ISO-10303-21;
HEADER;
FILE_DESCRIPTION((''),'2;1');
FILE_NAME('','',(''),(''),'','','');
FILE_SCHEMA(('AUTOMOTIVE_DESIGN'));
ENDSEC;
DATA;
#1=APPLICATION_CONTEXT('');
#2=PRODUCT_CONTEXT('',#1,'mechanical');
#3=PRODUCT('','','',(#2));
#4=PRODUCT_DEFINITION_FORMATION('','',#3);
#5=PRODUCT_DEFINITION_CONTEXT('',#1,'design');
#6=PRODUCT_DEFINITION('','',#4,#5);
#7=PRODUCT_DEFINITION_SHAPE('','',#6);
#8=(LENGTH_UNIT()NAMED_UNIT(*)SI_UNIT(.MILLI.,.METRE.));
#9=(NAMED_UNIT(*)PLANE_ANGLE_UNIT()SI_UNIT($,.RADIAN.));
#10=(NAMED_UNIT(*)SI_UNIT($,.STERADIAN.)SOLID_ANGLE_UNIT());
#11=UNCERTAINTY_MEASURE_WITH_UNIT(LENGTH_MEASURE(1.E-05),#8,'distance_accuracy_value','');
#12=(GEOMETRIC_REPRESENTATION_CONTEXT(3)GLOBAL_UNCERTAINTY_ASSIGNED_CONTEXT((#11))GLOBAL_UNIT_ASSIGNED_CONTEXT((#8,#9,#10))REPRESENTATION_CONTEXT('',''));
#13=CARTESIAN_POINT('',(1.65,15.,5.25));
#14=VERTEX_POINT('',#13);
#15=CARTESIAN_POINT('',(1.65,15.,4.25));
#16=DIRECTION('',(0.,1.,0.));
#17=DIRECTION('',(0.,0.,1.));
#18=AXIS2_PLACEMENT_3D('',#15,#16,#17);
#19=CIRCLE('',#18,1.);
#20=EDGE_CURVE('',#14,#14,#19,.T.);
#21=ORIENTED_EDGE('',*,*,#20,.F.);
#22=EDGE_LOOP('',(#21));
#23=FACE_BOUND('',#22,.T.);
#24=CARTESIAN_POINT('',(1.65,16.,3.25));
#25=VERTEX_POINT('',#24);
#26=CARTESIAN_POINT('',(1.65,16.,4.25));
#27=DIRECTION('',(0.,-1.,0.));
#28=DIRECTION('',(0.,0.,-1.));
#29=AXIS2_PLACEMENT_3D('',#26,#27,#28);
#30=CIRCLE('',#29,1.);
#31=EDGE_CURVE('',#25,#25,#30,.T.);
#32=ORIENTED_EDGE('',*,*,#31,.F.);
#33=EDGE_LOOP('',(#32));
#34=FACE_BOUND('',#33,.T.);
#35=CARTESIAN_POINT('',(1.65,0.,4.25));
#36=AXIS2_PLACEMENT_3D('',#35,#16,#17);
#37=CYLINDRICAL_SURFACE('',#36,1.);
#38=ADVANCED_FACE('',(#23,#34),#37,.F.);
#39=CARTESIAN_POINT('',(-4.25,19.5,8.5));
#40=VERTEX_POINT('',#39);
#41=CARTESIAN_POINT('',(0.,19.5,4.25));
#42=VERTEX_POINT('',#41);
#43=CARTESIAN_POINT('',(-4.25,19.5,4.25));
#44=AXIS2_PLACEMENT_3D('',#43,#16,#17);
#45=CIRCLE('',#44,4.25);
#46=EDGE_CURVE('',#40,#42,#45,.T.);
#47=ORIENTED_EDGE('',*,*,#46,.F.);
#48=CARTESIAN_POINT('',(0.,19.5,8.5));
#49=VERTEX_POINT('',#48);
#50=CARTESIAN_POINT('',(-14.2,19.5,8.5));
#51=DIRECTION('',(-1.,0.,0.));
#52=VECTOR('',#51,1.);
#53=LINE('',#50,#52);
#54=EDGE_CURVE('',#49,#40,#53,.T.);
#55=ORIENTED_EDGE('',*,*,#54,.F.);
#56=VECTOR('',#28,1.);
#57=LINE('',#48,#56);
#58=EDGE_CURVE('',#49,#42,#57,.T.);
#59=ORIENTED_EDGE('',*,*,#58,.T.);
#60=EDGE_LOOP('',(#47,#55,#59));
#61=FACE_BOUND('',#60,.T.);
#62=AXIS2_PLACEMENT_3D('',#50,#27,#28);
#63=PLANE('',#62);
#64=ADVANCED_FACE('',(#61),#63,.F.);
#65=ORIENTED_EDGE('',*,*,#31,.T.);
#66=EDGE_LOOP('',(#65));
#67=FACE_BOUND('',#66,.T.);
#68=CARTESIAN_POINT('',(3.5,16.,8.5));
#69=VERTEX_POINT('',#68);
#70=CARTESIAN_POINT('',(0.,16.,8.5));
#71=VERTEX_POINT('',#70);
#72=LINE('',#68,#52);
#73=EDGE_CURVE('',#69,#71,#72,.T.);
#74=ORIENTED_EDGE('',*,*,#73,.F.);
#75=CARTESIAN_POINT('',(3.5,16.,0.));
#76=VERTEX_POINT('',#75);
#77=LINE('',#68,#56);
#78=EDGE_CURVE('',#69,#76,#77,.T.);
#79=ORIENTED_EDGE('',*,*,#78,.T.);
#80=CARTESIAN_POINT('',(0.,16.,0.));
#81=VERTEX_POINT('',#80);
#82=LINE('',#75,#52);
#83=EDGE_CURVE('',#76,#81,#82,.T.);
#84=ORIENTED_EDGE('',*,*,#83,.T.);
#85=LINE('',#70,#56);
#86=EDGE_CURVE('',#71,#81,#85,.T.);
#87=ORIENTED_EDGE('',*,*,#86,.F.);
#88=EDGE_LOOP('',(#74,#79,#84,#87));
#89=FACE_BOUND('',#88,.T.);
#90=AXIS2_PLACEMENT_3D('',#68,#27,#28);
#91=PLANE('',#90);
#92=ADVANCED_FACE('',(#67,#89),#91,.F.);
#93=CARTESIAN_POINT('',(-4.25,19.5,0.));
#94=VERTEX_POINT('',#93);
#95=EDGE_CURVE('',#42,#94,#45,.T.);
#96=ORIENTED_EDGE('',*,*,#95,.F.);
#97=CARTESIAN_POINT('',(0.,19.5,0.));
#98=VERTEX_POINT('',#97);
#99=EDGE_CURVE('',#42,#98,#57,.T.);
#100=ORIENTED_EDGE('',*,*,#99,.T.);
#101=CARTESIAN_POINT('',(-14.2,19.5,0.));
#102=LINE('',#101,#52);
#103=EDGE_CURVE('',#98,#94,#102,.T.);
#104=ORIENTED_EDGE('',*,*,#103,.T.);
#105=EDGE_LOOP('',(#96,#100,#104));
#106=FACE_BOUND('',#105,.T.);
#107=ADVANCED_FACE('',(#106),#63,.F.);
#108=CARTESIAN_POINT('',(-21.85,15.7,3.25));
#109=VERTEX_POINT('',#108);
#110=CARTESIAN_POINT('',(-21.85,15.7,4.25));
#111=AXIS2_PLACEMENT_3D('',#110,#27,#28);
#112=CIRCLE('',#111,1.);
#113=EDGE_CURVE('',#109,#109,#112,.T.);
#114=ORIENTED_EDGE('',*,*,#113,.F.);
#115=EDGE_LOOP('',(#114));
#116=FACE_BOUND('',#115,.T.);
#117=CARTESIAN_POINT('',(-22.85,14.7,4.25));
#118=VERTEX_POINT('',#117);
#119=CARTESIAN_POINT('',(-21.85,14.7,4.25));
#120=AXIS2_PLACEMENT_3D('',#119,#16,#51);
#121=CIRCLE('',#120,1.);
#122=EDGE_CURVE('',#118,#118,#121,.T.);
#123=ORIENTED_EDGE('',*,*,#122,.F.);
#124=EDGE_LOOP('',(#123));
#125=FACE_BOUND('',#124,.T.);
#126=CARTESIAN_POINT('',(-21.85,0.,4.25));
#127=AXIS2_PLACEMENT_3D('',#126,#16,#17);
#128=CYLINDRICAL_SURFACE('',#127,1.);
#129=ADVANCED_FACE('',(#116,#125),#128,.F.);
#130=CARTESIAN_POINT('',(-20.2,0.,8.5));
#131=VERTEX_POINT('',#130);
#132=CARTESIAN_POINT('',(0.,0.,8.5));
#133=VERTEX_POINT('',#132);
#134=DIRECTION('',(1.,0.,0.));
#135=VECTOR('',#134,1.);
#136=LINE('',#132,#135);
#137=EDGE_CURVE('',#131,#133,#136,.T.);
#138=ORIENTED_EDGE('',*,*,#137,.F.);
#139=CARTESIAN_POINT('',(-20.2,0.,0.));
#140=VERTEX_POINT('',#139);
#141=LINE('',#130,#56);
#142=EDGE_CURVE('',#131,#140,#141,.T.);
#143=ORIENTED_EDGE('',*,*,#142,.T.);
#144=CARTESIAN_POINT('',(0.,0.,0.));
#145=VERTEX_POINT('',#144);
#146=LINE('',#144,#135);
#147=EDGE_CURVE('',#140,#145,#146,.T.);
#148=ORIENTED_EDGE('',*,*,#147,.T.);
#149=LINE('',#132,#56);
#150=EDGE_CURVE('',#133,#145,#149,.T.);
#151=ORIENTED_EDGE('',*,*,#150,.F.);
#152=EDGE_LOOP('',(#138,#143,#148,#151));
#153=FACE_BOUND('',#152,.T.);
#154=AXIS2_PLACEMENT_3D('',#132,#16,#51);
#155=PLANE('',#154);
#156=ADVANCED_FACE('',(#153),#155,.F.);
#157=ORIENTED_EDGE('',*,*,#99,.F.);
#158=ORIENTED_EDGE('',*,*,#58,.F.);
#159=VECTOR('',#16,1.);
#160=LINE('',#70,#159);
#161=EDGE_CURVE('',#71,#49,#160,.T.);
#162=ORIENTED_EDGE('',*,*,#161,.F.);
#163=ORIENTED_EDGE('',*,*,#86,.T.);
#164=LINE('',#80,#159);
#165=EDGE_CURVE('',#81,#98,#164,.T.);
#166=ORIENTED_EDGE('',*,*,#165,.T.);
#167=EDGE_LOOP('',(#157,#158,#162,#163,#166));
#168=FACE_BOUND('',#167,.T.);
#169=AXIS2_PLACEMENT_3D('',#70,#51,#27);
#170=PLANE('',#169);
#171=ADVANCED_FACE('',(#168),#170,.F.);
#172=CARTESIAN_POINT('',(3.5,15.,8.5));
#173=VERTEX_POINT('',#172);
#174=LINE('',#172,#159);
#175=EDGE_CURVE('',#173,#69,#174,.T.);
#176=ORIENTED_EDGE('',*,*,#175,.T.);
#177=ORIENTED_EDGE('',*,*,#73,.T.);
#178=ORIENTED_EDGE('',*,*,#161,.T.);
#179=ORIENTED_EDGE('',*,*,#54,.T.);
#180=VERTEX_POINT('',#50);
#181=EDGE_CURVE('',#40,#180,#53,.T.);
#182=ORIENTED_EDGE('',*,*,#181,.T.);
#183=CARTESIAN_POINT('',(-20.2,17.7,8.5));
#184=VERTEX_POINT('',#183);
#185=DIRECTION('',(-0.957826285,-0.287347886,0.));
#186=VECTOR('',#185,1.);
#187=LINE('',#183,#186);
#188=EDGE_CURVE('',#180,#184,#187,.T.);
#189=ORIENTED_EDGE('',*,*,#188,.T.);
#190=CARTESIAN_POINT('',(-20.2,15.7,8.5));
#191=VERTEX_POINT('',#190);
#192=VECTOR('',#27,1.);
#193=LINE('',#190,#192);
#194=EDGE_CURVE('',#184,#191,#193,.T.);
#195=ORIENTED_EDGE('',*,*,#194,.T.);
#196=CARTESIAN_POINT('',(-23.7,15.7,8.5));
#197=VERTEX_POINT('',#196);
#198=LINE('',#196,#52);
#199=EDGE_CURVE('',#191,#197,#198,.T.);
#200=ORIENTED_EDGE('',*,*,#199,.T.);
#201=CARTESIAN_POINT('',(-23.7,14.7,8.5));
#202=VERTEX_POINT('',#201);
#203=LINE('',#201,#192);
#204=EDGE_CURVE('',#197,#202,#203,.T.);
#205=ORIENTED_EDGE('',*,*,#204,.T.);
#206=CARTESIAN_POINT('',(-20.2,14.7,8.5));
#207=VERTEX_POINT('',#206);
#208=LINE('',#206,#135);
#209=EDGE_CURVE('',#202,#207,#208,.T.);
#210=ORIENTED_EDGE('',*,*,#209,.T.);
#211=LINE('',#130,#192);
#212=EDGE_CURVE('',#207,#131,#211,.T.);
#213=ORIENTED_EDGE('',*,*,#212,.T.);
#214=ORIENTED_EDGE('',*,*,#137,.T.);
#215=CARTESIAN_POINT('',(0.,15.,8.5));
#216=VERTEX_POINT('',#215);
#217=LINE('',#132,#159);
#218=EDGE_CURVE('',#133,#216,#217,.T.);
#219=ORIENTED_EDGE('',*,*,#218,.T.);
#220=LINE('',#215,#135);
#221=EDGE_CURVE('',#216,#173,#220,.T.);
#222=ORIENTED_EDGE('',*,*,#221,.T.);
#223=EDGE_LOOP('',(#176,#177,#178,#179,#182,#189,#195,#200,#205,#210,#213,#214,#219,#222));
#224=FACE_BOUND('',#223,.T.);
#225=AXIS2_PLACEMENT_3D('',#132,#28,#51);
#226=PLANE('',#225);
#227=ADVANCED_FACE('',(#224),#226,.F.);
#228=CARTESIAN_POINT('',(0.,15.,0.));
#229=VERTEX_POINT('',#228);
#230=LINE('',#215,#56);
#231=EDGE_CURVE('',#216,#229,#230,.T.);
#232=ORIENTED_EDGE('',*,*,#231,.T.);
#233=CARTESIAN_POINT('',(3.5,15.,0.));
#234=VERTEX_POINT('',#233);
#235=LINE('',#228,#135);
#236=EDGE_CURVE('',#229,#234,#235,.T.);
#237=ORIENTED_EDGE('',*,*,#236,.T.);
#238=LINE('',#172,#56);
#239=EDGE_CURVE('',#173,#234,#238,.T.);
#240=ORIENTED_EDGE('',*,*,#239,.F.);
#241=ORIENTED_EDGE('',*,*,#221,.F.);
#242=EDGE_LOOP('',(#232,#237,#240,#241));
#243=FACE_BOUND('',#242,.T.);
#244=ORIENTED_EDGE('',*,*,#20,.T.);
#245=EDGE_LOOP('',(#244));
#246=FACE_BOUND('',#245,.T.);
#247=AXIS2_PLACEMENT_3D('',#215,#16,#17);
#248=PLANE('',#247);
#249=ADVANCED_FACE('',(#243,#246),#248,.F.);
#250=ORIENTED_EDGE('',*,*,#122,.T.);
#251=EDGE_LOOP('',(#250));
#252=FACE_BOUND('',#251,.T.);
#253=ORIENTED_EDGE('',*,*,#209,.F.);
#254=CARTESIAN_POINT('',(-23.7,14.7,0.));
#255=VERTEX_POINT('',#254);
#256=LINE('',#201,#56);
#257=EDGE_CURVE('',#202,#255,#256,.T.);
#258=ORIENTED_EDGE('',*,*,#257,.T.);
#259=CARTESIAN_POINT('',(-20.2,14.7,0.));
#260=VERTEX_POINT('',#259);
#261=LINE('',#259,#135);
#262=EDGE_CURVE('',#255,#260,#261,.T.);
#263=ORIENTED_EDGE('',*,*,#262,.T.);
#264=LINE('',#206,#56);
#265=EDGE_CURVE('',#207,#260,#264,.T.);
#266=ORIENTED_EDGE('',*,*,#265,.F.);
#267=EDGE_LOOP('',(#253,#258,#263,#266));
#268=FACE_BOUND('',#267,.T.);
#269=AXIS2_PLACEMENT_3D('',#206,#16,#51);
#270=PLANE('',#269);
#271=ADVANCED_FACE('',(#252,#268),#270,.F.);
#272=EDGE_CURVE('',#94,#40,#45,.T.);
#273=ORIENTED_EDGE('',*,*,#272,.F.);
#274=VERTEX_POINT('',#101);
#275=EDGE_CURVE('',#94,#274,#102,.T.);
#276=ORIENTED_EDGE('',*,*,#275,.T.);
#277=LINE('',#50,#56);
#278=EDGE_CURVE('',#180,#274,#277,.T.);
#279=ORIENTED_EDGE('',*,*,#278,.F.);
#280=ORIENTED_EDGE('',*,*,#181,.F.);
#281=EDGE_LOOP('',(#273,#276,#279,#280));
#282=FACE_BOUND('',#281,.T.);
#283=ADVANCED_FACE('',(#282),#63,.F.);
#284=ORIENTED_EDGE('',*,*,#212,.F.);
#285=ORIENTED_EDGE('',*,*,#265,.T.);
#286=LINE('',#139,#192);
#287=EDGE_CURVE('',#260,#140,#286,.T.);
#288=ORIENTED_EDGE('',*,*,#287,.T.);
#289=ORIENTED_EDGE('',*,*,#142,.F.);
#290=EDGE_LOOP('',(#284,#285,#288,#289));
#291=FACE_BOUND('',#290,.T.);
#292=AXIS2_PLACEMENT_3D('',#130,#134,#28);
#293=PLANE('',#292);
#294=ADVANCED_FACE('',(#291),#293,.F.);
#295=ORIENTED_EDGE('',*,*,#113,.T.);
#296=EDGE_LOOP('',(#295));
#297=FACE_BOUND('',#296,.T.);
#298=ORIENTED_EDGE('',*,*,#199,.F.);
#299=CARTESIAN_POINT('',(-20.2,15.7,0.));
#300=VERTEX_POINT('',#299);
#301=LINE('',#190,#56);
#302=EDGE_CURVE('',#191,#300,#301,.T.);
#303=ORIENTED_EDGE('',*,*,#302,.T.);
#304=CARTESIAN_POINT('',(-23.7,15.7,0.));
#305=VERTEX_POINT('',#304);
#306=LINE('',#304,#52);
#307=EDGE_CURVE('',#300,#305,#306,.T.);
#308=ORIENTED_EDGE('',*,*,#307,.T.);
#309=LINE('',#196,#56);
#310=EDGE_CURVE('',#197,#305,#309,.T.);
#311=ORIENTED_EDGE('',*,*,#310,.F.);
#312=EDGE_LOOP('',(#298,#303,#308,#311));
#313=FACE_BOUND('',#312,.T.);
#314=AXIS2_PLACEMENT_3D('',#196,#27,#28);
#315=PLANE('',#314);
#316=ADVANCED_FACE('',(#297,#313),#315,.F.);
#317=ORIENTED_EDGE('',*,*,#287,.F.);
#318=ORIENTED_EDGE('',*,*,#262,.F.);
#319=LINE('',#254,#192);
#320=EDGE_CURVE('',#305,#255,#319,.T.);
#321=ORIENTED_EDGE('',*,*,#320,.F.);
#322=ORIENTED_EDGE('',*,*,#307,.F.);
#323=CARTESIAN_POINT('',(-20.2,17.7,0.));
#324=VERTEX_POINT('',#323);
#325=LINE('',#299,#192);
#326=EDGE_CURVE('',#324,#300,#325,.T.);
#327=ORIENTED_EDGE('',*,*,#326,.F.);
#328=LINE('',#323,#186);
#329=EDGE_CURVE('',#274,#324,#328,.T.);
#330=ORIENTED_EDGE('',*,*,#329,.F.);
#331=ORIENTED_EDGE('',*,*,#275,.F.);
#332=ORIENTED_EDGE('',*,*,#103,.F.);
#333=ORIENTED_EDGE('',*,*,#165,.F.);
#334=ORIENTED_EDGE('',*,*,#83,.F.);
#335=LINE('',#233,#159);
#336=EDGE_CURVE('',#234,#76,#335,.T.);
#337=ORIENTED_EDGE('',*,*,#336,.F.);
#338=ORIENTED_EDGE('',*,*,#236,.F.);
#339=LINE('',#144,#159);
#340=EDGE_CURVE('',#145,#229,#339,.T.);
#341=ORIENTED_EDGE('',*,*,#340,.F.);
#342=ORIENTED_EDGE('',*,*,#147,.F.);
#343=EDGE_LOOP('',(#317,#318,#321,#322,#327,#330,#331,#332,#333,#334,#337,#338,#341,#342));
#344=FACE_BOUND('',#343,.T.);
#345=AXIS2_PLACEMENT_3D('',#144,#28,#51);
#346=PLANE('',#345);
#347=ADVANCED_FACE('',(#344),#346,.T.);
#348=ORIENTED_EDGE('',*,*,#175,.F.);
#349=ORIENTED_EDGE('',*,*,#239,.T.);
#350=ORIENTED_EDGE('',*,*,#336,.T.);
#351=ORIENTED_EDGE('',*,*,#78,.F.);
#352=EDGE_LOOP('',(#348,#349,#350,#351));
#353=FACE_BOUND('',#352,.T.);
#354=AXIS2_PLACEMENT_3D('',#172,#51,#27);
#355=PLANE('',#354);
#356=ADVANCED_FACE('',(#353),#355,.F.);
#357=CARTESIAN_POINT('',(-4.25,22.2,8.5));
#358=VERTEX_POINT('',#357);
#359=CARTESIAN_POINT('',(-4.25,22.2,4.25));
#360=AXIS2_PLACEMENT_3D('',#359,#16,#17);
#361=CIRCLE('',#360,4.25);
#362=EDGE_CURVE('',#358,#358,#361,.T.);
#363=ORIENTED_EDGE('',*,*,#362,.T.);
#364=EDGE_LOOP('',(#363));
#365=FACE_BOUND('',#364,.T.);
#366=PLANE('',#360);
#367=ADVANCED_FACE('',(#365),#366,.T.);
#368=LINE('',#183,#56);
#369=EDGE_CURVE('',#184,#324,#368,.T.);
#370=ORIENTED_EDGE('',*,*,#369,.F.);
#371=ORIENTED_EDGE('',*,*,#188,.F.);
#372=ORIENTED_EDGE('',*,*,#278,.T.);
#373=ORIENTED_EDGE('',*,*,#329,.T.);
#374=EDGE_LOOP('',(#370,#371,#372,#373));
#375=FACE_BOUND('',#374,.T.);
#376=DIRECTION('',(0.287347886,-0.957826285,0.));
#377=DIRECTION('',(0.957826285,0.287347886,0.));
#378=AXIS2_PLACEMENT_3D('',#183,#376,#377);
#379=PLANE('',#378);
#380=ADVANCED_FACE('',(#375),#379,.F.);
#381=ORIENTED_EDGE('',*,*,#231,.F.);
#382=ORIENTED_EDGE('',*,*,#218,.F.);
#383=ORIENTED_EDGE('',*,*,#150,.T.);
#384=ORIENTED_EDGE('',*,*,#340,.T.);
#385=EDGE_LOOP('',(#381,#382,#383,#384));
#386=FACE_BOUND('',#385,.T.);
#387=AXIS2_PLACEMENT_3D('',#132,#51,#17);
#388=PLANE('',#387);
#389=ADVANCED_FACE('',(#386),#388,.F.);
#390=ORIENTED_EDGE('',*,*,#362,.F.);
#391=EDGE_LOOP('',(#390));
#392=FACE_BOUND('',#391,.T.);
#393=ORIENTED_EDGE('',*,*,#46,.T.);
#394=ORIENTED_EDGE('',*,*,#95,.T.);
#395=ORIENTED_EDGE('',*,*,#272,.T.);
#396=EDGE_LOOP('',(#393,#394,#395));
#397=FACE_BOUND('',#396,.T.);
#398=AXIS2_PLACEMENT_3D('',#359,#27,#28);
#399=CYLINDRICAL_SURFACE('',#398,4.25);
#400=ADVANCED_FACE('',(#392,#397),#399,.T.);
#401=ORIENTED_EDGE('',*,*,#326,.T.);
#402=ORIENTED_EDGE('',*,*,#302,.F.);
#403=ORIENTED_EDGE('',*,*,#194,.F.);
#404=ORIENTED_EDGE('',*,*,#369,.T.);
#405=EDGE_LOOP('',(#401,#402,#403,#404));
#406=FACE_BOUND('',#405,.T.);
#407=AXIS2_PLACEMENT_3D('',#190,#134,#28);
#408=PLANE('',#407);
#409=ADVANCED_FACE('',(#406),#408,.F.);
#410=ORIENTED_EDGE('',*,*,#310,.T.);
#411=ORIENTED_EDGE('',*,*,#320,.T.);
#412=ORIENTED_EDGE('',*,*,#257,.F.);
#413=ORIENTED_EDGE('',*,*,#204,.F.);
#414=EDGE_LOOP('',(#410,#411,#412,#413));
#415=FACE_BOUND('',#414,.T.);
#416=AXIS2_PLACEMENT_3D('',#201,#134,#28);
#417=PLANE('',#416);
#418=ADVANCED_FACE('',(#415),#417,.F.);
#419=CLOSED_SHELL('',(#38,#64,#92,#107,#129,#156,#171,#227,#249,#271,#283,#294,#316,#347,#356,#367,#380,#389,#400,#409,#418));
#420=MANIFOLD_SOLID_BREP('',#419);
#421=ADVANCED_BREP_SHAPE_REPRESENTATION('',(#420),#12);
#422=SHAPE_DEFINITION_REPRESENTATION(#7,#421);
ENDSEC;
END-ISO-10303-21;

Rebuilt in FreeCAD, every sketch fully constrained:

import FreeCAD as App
import Part
import Sketcher

V = App.Vector

doc = App.newDocument("Part")
params = doc.addObject("Spreadsheet::Sheet", "Params")
for row, (alias, value) in enumerate([
    ("sketch1_height", "15 mm"),
    ("sketch1_height2", "1 mm"),
    ("sketch1_height3", "2 mm"),
    ("sketch1_width", "20.2 mm"),
    ("sketch1_width2", "3.5 mm"),
    ("pad1_length", "8.5 mm"),
    ("sketch2_diameter", "8.5 mm"),
    ("pad2_length", "2.7 mm"),
    ("sketch3_diameter", "2 mm"),
], start=1):
    params.set(f"A{row}", alias)
    params.set(f"B{row}", "=" + value)
    params.setAlias(f"B{row}", alias)

body = doc.addObject("PartDesign::Body", "Body")

sketch1 = body.newObject("Sketcher::SketchObject", "Sketch")
sketch1.AttachmentSupport = (doc.getObject("XY_Plane"), [""])
sketch1.MapMode = "FlatFace"
sketch1.addGeometry(Part.LineSegment(V(-20.2, 0, 0), V(0, 0, 0)), False)
sketch1.addGeometry(Part.LineSegment(V(0, 0, 0), V(0, 15, 0)), False)
sketch1.addGeometry(Part.LineSegment(V(0, 15, 0), V(3.5, 15, 0)), False)
sketch1.addGeometry(Part.LineSegment(V(3.5, 15, 0), V(3.5, 16, 0)), False)
sketch1.addGeometry(Part.LineSegment(V(3.5, 16, 0), V(0, 16, 0)), False)
sketch1.addGeometry(Part.LineSegment(V(0, 16, 0), V(0, 19.5, 0)), False)
sketch1.addGeometry(Part.LineSegment(V(0, 19.5, 0), V(-14.2, 19.5, 0)), False)
sketch1.addGeometry(Part.LineSegment(V(-14.2, 19.5, 0), V(-20.2, 17.7, 0)), False)
sketch1.addGeometry(Part.LineSegment(V(-20.2, 17.7, 0), V(-20.2, 15.7, 0)), False)
sketch1.addGeometry(Part.LineSegment(V(-20.2, 15.7, 0), V(-23.7, 15.7, 0)), False)
sketch1.addGeometry(Part.LineSegment(V(-23.7, 15.7, 0), V(-23.7, 14.7, 0)), False)
sketch1.addGeometry(Part.LineSegment(V(-23.7, 14.7, 0), V(-20.2, 14.7, 0)), False)
sketch1.addGeometry(Part.LineSegment(V(-20.2, 14.7, 0), V(-20.2, 0, 0)), False)
sketch1.addConstraint(Sketcher.Constraint("Coincident", 0, 2, 1, 1))
sketch1.addConstraint(Sketcher.Constraint("Coincident", 1, 2, 2, 1))
sketch1.addConstraint(Sketcher.Constraint("Coincident", 2, 2, 3, 1))
sketch1.addConstraint(Sketcher.Constraint("Coincident", 3, 2, 4, 1))
sketch1.addConstraint(Sketcher.Constraint("Coincident", 4, 2, 5, 1))
sketch1.addConstraint(Sketcher.Constraint("Coincident", 5, 2, 6, 1))
sketch1.addConstraint(Sketcher.Constraint("Coincident", 6, 2, 7, 1))
sketch1.addConstraint(Sketcher.Constraint("Coincident", 7, 2, 8, 1))
sketch1.addConstraint(Sketcher.Constraint("Coincident", 8, 2, 9, 1))
sketch1.addConstraint(Sketcher.Constraint("Coincident", 9, 2, 10, 1))
sketch1.addConstraint(Sketcher.Constraint("Coincident", 10, 2, 11, 1))
sketch1.addConstraint(Sketcher.Constraint("Coincident", 11, 2, 12, 1))
sketch1.addConstraint(Sketcher.Constraint("Coincident", 12, 2, 0, 1))
sketch1.addConstraint(Sketcher.Constraint("Horizontal", 0))
sketch1.addConstraint(Sketcher.Constraint("Vertical", 1))
sketch1.addConstraint(Sketcher.Constraint("Horizontal", 2))
sketch1.addConstraint(Sketcher.Constraint("Vertical", 3))
sketch1.addConstraint(Sketcher.Constraint("Horizontal", 4))
sketch1.addConstraint(Sketcher.Constraint("Vertical", 5))
sketch1.addConstraint(Sketcher.Constraint("Horizontal", 6))
sketch1.addConstraint(Sketcher.Constraint("Vertical", 8))
sketch1.addConstraint(Sketcher.Constraint("Horizontal", 9))
sketch1.addConstraint(Sketcher.Constraint("Vertical", 10))
sketch1.addConstraint(Sketcher.Constraint("Horizontal", 11))
sketch1.addConstraint(Sketcher.Constraint("Vertical", 12))
sketch1.addConstraint(Sketcher.Constraint("Coincident", 0, 2, -1, 1))
sketch1.addConstraint(Sketcher.Constraint("PointOnObject", 4, 2, -2))
sketch1.addConstraint(Sketcher.Constraint("Vertical", 8, 2, 11, 2))
sketch1.addConstraint(Sketcher.Constraint("Equal", 4, 9))
sketch1.addConstraint(Sketcher.Constraint("Equal", 11, 5))
sketch1.addConstraint(Sketcher.Constraint("Equal", 3, 10))
sketch1.addConstraint(Sketcher.Constraint("DistanceY", 1, 1, 1, 2, 15.0))
sketch1.addConstraint(Sketcher.Constraint("DistanceY", 3, 1, 3, 2, 1.0))
sketch1.addConstraint(Sketcher.Constraint("DistanceY", 8, 2, 8, 1, 2.0))
sketch1.addConstraint(Sketcher.Constraint("DistanceX", 0, 1, 0, 2, 20.2))
sketch1.addConstraint(Sketcher.Constraint("DistanceX", 2, 1, 2, 2, 3.5))
sketch1.addConstraint(Sketcher.Constraint("DistanceX", 6, 2, 6, 1, 14.2))
sketch1.addConstraint(Sketcher.Constraint("DistanceY", 12, 2, 12, 1, 14.7))
sketch1.setExpression("Constraints[31]", "Params.sketch1_height")
sketch1.setExpression("Constraints[32]", "Params.sketch1_height2")
sketch1.setExpression("Constraints[33]", "Params.sketch1_height3")
sketch1.setExpression("Constraints[34]", "Params.sketch1_width")
sketch1.setExpression("Constraints[35]", "Params.sketch1_width2")
pad1 = body.newObject("PartDesign::Pad", "Pad")
pad1.Profile = sketch1
pad1.setExpression("Length", "Params.pad1_length")

sketch2 = body.newObject("Sketcher::SketchObject", "Sketch001")
sketch2.AttachmentSupport = (doc.getObject("XZ_Plane"), [""])
sketch2.MapMode = "FlatFace"
sketch2.AttachmentOffset = App.Placement(V(0, 0, -19.5), App.Rotation())
sketch2.addGeometry(Part.Circle(V(-4.2, 4.2, 0), V(0, 0, 1), 4.2), False)
sketch2.addConstraint(Sketcher.Constraint("Diameter", 0, 8.5))
sketch2.addConstraint(Sketcher.Constraint("DistanceX", 0, 3, -1, 1, 4.25))
sketch2.addConstraint(Sketcher.Constraint("DistanceY", -1, 1, 0, 3, 4.25))
sketch2.setExpression("Constraints[0]", "Params.sketch2_diameter")
pad2 = body.newObject("PartDesign::Pad", "Pad001")
pad2.Profile = sketch2
pad2.setExpression("Length", "Params.pad2_length")
pad2.Reversed = True

sketch3 = body.newObject("Sketcher::SketchObject", "Sketch002")
sketch3.AttachmentSupport = (doc.getObject("XZ_Plane"), [""])
sketch3.MapMode = "FlatFace"
sketch3.AttachmentOffset = App.Placement(V(0, 0, -15.7), App.Rotation())
sketch3.addGeometry(Part.Circle(V(-21.9, 4.2, 0), V(0, 0, 1), 1), False)
sketch3.addGeometry(Part.Circle(V(1.6, 4.2, 0), V(0, 0, 1), 1), False)
sketch3.addConstraint(Sketcher.Constraint("Equal", 0, 1))
sketch3.addConstraint(Sketcher.Constraint("Horizontal", 0, 3, 1, 3))
sketch3.addConstraint(Sketcher.Constraint("Diameter", 0, 2.0))
sketch3.addConstraint(Sketcher.Constraint("DistanceX", 0, 3, 1, 3, 23.5))
sketch3.addConstraint(Sketcher.Constraint("DistanceX", 0, 3, -1, 1, 21.85))
sketch3.addConstraint(Sketcher.Constraint("DistanceY", -1, 1, 0, 3, 4.25))
sketch3.setExpression("Constraints[2]", "Params.sketch3_diameter")
pocket1 = body.newObject("PartDesign::Pocket", "Pocket")
pocket1.Profile = sketch3
pocket1.Type = "ThroughAll"
pocket1.Midplane = True

doc.recompute()
